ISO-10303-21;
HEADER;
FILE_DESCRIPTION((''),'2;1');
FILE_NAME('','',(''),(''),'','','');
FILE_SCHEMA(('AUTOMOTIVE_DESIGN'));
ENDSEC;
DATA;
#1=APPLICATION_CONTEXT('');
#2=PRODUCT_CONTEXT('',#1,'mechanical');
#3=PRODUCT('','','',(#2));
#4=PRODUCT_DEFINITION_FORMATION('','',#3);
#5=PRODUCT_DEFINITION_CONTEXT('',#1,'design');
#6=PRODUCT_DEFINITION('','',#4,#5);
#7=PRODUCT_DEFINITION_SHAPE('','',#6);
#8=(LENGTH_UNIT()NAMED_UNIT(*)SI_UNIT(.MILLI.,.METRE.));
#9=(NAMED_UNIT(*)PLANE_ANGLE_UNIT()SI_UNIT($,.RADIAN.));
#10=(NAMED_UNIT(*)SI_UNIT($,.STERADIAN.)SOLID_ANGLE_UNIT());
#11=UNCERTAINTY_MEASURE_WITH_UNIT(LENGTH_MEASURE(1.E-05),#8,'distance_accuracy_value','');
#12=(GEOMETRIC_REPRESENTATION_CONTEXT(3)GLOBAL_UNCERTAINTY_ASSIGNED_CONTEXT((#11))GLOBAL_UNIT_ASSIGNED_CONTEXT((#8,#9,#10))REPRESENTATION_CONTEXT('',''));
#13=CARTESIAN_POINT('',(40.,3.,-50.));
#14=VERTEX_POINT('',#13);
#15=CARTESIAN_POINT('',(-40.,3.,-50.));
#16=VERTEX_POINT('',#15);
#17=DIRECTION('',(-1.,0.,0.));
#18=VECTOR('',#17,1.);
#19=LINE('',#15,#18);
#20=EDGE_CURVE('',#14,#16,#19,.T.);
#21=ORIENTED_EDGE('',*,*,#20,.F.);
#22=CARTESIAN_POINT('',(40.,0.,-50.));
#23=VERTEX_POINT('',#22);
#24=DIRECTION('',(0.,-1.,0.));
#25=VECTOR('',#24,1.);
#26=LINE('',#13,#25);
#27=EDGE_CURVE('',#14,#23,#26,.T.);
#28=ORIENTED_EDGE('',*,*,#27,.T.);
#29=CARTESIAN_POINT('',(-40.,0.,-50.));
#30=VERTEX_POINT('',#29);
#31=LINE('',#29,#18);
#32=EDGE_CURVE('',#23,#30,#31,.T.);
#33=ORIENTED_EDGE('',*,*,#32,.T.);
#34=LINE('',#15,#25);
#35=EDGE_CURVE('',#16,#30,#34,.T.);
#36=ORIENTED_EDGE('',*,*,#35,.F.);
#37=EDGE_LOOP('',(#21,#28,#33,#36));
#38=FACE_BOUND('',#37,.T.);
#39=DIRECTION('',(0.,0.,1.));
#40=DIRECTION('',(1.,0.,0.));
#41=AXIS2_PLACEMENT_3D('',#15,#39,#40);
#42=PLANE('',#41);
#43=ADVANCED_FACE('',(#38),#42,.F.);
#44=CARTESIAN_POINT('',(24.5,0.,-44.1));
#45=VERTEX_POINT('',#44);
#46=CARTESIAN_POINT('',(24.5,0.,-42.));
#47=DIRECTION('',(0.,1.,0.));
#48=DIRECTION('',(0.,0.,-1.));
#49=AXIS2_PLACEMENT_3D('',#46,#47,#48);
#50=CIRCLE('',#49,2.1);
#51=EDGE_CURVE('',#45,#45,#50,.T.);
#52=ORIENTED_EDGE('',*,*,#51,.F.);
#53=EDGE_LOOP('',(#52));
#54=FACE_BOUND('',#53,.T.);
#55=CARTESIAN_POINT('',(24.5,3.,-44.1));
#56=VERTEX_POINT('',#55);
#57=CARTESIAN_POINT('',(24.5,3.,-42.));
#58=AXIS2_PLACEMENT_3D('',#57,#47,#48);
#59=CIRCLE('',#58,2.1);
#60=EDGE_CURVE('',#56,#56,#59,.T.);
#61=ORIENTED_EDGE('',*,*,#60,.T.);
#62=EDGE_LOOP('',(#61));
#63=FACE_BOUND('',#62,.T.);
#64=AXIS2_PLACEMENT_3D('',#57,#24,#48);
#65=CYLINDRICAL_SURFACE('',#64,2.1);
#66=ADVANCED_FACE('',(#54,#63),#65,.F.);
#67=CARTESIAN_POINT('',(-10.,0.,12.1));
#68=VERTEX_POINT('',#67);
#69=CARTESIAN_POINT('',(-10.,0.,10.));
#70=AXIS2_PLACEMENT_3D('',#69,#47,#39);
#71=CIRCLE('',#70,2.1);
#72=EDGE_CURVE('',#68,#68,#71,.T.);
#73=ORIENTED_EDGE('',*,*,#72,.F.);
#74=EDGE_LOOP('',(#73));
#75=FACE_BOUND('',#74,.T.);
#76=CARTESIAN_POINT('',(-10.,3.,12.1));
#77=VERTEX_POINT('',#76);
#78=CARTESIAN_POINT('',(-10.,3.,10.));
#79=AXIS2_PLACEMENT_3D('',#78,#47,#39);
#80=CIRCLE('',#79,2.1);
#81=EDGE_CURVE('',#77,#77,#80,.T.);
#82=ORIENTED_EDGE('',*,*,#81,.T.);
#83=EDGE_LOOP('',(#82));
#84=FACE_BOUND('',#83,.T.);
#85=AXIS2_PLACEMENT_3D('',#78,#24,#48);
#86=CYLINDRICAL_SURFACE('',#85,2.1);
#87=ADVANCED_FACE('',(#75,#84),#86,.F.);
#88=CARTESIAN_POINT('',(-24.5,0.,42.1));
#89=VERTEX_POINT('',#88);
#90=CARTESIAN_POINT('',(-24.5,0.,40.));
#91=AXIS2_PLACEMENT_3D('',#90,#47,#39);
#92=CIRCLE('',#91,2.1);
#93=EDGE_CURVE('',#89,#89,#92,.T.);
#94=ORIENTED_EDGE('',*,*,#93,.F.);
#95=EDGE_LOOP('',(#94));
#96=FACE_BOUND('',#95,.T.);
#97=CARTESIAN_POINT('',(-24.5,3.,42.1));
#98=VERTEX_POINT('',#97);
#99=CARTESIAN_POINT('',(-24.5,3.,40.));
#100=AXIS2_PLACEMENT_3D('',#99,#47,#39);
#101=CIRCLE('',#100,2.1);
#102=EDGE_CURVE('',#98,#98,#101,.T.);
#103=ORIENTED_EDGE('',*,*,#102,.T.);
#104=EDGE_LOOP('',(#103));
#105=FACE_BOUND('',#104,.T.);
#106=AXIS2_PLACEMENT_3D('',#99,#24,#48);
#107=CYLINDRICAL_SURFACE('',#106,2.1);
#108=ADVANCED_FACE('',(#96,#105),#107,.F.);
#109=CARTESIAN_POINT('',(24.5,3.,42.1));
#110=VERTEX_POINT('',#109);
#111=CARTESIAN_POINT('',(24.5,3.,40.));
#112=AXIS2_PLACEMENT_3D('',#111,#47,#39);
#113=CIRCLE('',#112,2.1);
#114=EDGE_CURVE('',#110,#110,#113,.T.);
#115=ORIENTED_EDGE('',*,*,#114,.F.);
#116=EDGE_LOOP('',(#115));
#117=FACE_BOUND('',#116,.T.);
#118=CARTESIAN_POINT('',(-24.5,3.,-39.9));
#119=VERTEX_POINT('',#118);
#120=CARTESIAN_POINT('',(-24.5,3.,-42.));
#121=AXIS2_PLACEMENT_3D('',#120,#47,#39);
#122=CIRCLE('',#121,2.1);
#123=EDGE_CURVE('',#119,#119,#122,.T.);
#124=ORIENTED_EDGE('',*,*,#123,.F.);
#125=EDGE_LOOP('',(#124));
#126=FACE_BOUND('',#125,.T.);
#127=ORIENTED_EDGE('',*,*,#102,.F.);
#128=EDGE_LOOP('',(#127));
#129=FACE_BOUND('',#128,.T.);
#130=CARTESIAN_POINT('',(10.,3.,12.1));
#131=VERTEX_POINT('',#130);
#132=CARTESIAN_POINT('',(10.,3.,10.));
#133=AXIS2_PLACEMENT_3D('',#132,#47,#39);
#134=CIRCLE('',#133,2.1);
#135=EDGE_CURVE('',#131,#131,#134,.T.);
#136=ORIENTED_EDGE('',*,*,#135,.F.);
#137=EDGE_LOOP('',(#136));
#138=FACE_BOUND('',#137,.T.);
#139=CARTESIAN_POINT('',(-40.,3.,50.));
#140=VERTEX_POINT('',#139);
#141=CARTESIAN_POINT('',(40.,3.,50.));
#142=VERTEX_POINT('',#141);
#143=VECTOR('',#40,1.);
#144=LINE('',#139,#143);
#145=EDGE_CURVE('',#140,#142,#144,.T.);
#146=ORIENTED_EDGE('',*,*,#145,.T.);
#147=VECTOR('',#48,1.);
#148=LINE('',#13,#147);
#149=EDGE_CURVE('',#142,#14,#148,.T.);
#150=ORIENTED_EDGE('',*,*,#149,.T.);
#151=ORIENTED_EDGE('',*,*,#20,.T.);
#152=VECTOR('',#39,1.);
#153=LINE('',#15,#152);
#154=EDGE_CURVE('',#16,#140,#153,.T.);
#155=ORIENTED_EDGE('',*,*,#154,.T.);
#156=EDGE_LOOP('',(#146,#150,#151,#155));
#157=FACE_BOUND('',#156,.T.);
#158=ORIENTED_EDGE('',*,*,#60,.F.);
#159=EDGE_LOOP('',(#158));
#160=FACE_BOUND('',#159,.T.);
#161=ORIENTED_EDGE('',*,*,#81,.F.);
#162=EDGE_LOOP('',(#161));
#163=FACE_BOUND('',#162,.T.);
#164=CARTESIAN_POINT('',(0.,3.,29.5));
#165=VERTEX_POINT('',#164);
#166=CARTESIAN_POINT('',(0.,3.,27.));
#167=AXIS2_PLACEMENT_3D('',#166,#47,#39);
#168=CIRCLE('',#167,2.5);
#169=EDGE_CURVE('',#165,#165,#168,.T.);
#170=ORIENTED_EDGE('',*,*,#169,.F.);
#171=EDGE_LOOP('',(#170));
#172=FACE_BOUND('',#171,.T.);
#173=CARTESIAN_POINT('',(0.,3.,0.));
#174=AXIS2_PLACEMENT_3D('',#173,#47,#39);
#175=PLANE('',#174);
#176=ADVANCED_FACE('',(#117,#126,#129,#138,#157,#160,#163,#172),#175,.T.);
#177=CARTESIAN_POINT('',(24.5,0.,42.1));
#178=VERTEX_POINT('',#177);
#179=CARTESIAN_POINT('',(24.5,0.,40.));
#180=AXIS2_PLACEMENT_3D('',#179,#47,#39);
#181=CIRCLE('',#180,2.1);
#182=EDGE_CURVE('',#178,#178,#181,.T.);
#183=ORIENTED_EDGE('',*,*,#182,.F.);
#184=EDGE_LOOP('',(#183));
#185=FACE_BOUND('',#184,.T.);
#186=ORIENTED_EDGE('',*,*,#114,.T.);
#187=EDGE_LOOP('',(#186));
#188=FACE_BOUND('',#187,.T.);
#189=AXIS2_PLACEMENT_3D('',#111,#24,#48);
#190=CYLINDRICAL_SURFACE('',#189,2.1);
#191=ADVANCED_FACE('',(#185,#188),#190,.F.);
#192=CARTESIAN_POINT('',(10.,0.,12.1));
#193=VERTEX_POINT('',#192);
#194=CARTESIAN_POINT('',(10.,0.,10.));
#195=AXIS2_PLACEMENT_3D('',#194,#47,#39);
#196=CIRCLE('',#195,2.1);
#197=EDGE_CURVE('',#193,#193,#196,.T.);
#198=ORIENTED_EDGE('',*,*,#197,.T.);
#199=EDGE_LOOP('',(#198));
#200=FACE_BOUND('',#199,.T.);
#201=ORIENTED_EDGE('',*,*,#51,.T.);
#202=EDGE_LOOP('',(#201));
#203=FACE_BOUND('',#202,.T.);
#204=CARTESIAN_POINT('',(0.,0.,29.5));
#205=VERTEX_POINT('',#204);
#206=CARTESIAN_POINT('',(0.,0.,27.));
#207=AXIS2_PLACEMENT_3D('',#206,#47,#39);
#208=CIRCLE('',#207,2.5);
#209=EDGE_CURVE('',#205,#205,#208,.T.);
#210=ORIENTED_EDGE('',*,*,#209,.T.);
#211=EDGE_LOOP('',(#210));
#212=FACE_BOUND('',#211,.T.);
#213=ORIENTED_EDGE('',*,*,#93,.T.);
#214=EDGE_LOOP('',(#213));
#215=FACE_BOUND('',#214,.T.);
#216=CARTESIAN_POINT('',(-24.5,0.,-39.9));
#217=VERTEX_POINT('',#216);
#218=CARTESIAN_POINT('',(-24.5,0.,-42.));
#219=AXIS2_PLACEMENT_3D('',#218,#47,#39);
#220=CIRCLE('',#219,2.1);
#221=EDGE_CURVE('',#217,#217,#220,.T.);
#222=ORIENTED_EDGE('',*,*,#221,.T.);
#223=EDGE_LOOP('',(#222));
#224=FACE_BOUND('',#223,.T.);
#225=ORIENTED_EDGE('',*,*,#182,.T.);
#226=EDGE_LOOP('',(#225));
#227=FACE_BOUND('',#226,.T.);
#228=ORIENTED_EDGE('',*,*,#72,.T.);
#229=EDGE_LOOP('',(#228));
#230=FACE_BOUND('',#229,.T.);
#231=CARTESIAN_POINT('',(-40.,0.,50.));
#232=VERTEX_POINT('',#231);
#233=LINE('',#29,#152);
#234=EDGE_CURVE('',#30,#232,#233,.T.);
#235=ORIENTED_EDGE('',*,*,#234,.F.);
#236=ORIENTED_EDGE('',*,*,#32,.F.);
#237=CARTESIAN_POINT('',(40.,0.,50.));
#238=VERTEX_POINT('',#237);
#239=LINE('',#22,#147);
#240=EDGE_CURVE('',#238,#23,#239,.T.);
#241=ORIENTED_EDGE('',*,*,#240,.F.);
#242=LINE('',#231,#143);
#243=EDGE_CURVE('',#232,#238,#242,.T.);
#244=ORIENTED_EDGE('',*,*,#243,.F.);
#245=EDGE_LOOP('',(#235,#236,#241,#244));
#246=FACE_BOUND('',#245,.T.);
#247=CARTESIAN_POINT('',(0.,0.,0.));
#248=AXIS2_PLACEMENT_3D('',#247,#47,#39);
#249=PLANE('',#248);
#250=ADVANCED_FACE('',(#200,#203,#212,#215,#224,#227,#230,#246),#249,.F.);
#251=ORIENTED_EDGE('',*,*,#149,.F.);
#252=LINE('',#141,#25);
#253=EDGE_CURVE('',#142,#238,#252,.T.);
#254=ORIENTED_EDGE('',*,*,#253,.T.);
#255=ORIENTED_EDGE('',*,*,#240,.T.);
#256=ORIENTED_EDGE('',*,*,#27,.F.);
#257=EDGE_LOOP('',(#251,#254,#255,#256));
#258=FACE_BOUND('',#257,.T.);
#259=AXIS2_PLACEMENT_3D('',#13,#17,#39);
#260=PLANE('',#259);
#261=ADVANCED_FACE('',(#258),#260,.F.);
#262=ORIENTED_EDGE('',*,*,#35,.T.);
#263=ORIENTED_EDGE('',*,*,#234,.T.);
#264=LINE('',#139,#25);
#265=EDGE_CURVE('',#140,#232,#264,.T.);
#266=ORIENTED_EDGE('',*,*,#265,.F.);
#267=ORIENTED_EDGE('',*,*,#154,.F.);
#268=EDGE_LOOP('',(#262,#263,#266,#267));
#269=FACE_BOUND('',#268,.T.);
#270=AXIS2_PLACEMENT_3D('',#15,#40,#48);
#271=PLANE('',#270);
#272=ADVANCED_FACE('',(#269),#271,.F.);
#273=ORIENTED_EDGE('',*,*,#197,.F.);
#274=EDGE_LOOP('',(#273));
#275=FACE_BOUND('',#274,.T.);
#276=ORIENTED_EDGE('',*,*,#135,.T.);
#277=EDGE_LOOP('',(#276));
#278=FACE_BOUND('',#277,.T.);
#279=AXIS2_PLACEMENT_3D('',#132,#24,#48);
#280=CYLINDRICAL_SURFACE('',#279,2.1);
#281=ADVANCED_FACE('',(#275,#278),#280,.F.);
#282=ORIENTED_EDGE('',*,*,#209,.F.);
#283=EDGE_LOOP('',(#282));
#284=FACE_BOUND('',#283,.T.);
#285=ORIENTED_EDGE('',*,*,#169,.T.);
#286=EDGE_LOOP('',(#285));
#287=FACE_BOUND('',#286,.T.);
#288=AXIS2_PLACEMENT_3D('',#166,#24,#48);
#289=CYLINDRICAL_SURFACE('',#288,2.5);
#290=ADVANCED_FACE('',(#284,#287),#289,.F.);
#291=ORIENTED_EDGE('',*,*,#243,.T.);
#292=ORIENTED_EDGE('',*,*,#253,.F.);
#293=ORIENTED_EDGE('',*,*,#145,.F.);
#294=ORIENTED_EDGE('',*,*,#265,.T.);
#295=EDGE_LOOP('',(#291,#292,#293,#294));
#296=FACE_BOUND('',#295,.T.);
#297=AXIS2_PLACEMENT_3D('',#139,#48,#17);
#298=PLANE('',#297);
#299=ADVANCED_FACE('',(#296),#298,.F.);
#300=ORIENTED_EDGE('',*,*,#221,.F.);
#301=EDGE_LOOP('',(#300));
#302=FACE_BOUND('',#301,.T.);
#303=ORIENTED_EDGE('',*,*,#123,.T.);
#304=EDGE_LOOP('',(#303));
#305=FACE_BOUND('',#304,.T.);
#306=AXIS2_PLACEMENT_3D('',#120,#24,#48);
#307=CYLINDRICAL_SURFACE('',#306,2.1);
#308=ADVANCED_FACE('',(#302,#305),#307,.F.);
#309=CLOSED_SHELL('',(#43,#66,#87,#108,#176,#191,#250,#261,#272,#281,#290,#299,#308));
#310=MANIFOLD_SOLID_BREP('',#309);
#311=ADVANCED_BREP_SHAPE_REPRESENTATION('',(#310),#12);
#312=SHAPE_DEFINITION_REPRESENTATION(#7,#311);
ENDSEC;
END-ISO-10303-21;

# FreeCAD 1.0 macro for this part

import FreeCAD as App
import Part
import Sketcher
Q = App.Units.Quantity


def add_polygon(sketch, points):
    """Adds a closed chain of lines whose ends are joined by coincident constraints."""
    first, n = sketch.GeometryCount, len(points)
    for a, b in zip(points, points[1:] + points[:1]):
        sketch.addGeometry(Part.LineSegment(App.Vector(*a, 0), App.Vector(*b, 0)), False)
    for i in range(n):
        sketch.addConstraint(Sketcher.Constraint("Coincident", first + i, 2, first + (i + 1) % n, 1))

doc = App.newDocument("Part")
body = doc.addObject("PartDesign::Body", "Body")

# Sketch on XZ plane
sketch1 = doc.addObject("Sketcher::SketchObject", "Sketch")
body.addObject(sketch1)
sketch1.AttachmentSupport = (doc.XZ_Plane, [""])
sketch1.MapMode = "FlatFace"
add_polygon(sketch1, [(-40, -50), (-40, 50), (40, 50), (40, -50)])  # lines 0-3
sketch1.addGeometry(Part.Circle(App.Vector(-24.5, 40, 0), App.Vector(0, 0, 1), 2.1), False)  # 4
sketch1.addGeometry(Part.Circle(App.Vector(-10, 10, 0), App.Vector(0, 0, 1), 2.1), False)  # 5
sketch1.addGeometry(Part.Circle(App.Vector(0, 27, 0), App.Vector(0, 0, 1), 2.5), False)  # 6
sketch1.addGeometry(Part.Circle(App.Vector(24.5, 40, 0), App.Vector(0, 0, 1), 2.1), False)  # 7
sketch1.addGeometry(Part.Circle(App.Vector(10, 10, 0), App.Vector(0, 0, 1), 2.1), False)  # 8
sketch1.addGeometry(Part.Circle(App.Vector(-24.5, -42, 0), App.Vector(0, 0, 1), 2.1), False)  # 9
sketch1.addGeometry(Part.Circle(App.Vector(24.5, -42, 0), App.Vector(0, 0, 1), 2.1), False)  # 10
sketch1.addConstraint(Sketcher.Constraint("Vertical", 0))
sketch1.addConstraint(Sketcher.Constraint("Horizontal", 1))
sketch1.addConstraint(Sketcher.Constraint("Vertical", 2))
sketch1.addConstraint(Sketcher.Constraint("Horizontal", 3))
sketch1.addConstraint(Sketcher.Constraint("Equal", 4, 5))
sketch1.addConstraint(Sketcher.Constraint("Equal", 5, 7))
sketch1.addConstraint(Sketcher.Constraint("Equal", 7, 8))
sketch1.addConstraint(Sketcher.Constraint("Equal", 8, 9))
sketch1.addConstraint(Sketcher.Constraint("Equal", 9, 10))
sketch1.addConstraint(Sketcher.Constraint("Symmetric", 0, 2, 2, 2, -1, 1))
sketch1.addConstraint(Sketcher.Constraint("Symmetric", 4, 3, 7, 3, -2))
sketch1.addConstraint(Sketcher.Constraint("Symmetric", 5, 3, 8, 3, -2))
sketch1.addConstraint(Sketcher.Constraint("Symmetric", 9, 3, 10, 3, -2))
sketch1.addConstraint(Sketcher.Constraint("PointOnObject", 6, 3, -2))
sketch1.addConstraint(Sketcher.Constraint("Vertical", 4, 3, 9, 3))
sketch1.addConstraint(Sketcher.Constraint("Diameter", 6, Q("5 mm")))
sketch1.addConstraint(Sketcher.Constraint("Diameter", 4, Q("4.2 mm")))
sketch1.addConstraint(Sketcher.Constraint("DistanceX", 1, 1, 1, 2, Q("80 mm")))
sketch1.addConstraint(Sketcher.Constraint("DistanceY", 0, 1, 0, 2, Q("100 mm")))
sketch1.addConstraint(Sketcher.Constraint("DistanceY", -1, 1, 4, 3, Q("40 mm")))
sketch1.addConstraint(Sketcher.Constraint("DistanceX", 5, 3, -1, 1, Q("10 mm")))
sketch1.addConstraint(Sketcher.Constraint("DistanceY", -1, 1, 5, 3, Q("10 mm")))
sketch1.addConstraint(Sketcher.Constraint("DistanceY", -1, 1, 6, 3, Q("27 mm")))
sketch1.addConstraint(Sketcher.Constraint("DistanceY", 9, 3, -1, 1, Q("42 mm")))
sketch1.addConstraint(Sketcher.Constraint("DistanceX", 4, 3, 7, 3, Q("49 mm")))
pad1 = doc.addObject("PartDesign::Pad", "Pad")
body.addObject(pad1)
pad1.Profile = sketch1
pad1.Length = 3
pad1.Reversed = True

doc.recompute()
